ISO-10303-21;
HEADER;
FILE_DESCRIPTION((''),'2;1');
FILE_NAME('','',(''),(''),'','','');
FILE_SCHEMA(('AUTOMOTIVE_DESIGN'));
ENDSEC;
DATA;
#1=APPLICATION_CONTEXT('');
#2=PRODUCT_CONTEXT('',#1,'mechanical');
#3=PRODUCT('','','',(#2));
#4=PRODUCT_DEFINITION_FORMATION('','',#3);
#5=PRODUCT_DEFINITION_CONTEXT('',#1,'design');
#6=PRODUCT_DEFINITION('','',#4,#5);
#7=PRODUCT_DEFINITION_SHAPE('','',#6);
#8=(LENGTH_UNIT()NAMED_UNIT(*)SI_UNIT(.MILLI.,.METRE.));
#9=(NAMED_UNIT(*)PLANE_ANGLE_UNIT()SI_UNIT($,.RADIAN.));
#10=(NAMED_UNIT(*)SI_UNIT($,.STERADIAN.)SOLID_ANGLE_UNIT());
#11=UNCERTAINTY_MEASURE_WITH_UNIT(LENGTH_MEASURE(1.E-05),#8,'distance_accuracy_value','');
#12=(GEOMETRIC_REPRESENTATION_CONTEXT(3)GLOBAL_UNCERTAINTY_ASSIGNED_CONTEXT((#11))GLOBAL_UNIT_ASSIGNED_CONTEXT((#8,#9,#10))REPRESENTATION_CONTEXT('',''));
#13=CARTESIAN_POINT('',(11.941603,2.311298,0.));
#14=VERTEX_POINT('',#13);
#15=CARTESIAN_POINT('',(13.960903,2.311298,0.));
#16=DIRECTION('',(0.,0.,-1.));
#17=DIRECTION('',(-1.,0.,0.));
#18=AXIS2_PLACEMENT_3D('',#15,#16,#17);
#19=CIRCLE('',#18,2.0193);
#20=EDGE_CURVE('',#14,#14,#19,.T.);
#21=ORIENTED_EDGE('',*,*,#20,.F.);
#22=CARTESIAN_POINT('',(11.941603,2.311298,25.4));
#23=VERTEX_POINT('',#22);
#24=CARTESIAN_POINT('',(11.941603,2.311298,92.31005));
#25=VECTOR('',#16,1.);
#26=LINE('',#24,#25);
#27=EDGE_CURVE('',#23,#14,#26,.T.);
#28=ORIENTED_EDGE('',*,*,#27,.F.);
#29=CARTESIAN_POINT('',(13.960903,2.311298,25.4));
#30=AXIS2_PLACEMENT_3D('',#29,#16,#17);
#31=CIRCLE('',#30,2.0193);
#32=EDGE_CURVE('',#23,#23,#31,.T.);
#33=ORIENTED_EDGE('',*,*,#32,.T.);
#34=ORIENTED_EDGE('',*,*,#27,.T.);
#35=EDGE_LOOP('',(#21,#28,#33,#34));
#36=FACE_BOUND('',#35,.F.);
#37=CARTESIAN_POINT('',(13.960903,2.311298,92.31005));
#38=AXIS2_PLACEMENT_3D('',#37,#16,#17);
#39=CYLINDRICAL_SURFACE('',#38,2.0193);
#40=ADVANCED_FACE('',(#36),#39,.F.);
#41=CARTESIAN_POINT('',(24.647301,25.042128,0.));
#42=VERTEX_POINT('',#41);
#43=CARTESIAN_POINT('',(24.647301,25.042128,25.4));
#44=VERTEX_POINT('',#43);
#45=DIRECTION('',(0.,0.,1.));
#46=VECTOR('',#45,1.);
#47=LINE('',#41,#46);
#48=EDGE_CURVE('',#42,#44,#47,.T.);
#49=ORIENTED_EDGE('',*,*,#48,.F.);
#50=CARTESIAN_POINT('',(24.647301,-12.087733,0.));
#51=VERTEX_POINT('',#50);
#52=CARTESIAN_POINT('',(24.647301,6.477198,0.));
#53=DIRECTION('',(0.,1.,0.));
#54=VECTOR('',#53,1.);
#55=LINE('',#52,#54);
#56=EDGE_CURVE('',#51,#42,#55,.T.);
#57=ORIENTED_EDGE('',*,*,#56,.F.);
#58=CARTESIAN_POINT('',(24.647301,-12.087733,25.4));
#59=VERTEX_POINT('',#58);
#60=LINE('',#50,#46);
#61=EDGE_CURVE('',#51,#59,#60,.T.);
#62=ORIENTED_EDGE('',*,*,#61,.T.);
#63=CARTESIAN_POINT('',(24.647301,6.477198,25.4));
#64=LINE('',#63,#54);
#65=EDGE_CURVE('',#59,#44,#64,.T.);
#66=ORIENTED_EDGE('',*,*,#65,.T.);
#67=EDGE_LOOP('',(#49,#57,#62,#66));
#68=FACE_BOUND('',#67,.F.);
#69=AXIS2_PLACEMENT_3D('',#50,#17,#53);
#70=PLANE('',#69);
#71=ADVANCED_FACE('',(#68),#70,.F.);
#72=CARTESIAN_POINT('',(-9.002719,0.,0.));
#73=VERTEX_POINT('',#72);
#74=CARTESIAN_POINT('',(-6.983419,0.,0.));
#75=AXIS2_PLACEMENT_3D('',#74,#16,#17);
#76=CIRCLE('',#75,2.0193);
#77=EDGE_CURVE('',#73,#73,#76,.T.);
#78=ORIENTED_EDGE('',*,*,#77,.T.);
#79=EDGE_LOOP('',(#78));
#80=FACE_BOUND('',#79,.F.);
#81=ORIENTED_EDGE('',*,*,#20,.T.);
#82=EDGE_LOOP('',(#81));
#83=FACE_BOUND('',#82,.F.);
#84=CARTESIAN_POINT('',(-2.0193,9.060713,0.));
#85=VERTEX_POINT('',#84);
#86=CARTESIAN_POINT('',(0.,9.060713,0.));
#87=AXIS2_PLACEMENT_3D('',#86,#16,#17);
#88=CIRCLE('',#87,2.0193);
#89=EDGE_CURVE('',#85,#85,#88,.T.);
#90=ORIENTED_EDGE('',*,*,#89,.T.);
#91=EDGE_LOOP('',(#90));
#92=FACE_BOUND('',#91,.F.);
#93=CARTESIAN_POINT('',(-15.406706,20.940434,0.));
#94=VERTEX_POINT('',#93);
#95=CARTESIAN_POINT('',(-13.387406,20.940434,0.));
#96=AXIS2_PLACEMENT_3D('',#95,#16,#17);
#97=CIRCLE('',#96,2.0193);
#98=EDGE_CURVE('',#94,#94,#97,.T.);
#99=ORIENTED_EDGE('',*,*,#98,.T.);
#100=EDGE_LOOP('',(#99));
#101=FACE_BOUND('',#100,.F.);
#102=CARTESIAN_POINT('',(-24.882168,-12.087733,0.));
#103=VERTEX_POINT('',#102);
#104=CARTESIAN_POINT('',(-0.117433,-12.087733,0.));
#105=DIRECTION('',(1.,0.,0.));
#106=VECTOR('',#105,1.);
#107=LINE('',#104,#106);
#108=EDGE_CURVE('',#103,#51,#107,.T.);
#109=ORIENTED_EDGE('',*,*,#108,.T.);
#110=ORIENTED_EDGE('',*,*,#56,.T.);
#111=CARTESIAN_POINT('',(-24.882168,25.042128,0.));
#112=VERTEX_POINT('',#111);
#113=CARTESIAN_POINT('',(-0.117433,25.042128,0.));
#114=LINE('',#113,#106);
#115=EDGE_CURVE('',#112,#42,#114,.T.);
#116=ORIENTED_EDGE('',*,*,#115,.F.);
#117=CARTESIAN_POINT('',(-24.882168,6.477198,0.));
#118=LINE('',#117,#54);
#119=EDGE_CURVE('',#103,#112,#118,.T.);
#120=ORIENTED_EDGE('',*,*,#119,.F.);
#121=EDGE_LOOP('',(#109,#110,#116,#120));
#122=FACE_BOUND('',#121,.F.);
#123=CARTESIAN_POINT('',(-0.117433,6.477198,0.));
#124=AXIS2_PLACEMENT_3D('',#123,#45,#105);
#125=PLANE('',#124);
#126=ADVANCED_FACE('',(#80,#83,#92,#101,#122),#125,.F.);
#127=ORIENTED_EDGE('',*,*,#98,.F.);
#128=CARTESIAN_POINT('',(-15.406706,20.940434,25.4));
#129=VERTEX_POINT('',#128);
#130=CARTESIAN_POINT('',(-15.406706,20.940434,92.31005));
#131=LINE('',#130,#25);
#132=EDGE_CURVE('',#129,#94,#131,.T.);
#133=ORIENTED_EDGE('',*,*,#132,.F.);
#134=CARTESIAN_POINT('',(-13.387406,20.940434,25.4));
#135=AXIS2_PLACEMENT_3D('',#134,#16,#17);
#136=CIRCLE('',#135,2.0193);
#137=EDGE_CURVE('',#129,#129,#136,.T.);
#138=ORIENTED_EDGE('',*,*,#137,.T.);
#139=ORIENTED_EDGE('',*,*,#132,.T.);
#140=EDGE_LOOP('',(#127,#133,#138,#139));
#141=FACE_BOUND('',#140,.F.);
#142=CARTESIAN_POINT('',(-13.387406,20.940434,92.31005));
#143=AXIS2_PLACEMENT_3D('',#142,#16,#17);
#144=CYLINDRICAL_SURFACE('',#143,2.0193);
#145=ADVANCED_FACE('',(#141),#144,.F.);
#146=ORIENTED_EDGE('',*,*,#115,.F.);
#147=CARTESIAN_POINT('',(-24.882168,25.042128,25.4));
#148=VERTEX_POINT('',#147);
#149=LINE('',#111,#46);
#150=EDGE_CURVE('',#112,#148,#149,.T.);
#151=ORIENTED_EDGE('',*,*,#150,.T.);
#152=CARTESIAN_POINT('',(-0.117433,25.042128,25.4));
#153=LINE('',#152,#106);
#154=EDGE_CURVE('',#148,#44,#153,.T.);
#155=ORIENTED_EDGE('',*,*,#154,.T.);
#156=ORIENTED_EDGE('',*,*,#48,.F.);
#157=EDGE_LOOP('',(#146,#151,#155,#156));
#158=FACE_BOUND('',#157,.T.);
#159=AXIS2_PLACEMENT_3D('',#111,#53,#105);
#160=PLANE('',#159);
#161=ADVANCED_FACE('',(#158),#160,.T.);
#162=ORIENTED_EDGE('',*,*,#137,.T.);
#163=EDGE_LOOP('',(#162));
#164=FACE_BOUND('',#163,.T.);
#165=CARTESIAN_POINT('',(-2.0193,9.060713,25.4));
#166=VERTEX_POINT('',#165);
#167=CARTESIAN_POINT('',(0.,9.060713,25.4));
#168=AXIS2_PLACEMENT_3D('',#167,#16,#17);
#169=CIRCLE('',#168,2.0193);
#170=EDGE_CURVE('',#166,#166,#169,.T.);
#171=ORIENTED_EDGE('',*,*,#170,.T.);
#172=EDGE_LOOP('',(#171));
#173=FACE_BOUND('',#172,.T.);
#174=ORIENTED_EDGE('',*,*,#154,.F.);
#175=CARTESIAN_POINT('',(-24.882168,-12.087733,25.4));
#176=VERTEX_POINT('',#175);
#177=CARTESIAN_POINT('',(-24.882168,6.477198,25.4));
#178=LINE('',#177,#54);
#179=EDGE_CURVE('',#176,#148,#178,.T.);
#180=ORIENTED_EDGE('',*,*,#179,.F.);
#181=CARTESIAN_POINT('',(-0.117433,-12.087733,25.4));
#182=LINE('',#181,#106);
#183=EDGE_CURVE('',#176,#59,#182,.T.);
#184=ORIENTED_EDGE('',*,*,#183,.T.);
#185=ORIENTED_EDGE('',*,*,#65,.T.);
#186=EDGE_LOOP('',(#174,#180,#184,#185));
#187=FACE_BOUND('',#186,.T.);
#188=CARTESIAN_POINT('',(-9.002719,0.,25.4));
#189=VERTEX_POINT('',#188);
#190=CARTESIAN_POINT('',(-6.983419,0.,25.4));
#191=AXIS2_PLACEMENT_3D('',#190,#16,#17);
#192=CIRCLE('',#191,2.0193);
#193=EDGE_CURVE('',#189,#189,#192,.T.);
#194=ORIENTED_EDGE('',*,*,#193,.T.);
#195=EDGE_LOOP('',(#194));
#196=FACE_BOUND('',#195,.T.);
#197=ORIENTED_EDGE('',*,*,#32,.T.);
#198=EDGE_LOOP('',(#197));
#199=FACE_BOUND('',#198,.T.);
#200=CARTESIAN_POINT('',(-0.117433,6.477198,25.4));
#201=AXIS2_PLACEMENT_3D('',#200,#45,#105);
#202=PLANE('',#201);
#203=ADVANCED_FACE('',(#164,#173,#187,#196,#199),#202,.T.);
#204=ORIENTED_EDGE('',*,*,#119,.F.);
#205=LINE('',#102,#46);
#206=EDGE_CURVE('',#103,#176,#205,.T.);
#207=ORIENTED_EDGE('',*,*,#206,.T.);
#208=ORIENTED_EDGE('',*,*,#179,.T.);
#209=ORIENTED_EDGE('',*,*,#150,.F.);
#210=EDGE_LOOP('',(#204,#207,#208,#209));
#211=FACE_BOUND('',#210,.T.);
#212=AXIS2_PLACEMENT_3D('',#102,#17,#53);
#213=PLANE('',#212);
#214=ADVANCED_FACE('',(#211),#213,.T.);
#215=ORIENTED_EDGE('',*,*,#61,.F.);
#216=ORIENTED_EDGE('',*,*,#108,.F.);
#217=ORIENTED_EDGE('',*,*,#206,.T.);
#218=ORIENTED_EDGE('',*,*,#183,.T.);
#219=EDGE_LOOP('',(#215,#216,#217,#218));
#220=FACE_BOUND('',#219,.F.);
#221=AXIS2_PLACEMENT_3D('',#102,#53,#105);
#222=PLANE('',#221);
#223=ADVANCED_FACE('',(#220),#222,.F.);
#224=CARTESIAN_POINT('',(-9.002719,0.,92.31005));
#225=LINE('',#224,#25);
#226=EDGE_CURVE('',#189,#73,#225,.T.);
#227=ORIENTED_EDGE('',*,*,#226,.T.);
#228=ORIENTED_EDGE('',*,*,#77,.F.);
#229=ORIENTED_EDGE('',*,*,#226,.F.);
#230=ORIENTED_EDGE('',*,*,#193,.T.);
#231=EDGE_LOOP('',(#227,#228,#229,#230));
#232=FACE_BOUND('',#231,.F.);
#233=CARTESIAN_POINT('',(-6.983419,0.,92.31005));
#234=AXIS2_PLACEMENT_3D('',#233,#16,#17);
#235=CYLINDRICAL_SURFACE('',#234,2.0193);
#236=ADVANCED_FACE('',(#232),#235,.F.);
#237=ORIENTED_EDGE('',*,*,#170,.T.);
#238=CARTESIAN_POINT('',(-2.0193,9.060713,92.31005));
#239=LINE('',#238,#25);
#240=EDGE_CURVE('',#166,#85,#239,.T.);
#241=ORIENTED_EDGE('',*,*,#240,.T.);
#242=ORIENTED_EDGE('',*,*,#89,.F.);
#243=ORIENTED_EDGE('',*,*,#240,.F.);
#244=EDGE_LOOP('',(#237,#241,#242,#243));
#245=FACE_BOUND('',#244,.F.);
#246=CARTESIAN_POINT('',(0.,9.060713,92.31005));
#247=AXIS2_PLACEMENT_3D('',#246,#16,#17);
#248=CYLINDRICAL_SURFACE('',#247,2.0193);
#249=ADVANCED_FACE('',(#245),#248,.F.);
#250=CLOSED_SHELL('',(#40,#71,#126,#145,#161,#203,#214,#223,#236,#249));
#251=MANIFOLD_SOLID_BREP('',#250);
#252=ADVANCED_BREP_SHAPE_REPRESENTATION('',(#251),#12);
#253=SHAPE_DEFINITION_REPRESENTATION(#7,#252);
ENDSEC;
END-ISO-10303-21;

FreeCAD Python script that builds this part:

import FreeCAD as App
import Part
import Sketcher
from FreeCAD import Vector
Q = App.Units.Quantity


def add_polygon(sketch, points):
    """Adds a closed chain of lines whose ends are joined by coincident constraints."""
    first, n = sketch.GeometryCount, len(points)
    for a, b in zip(points, points[1:] + points[:1]):
        sketch.addGeometry(Part.LineSegment(App.Vector(*a, 0), App.Vector(*b, 0)), False)
    for i in range(n):
        sketch.addConstraint(Sketcher.Constraint("Coincident", first + i, 2, first + (i + 1) % n, 1))

doc = App.newDocument("Part")
params = doc.addObject("Spreadsheet::Sheet", "Params")
for row, (alias, value) in enumerate([
    ("pad1_length", "1 in"),
    ("sketch2_diameter", "0.159 in"),
    ("hole_diameter", "0.159 in"),
], start=1):
    params.set(f"A{row}", alias)
    params.set(f"B{row}", "=" + value)
    params.setAlias(f"B{row}", alias)

body = doc.addObject("PartDesign::Body", "Body")

# Sketch on XY plane
sketch1 = body.newObject("Sketcher::SketchObject", "Sketch")
sketch1.AttachmentSupport = (doc.getObject("XY_Plane"), [""])
sketch1.MapMode = "FlatFace"
add_polygon(sketch1, [(-25, 25), (-25, -12), (25, -12), (25, 25)])  # lines 0-3
sketch1.addConstraint(Sketcher.Constraint("Vertical", 0))
sketch1.addConstraint(Sketcher.Constraint("Horizontal", 1))
sketch1.addConstraint(Sketcher.Constraint("Vertical", 2))
sketch1.addConstraint(Sketcher.Constraint("Horizontal", 3))
sketch1.addConstraint(Sketcher.Constraint("DistanceX", 1, 1, 1, 2, Q("49.529469 mm")))
sketch1.addConstraint(Sketcher.Constraint("DistanceY", 0, 2, 0, 1, Q("37.12986 mm")))
sketch1.addConstraint(Sketcher.Constraint("DistanceX", -1, 1, 1, 2, Q("24.647301 mm")))
sketch1.addConstraint(Sketcher.Constraint("DistanceY", 0, 2, -1, 1, Q("12.087733 mm")))
pad1 = body.newObject("PartDesign::Pad", "Pad")
pad1.Profile = sketch1
pad1.setExpression("Length", "Params.pad1_length")

# Sketch on XY plane
sketch2 = body.newObject("Sketcher::SketchObject", "Sketch001")
sketch2.AttachmentSupport = (doc.getObject("XY_Plane"), [""])
sketch2.MapMode = "FlatFace"
sketch2.AttachmentOffset = App.Placement(Vector(0, 0, 1 * 25.4), App.Rotation())
sketch2.addGeometry(Part.Circle(Vector(14, 2.3, 0), Vector(0, 0, 1), 2), False)
sketch2.addGeometry(Part.Circle(Vector(-13.4, 20.9, 0), Vector(0, 0, 1), 2), False)
sketch2.addGeometry(Part.Circle(Vector(-7, 0, 0), Vector(0, 0, 1), 2), False)
sketch2.addGeometry(Part.Circle(Vector(0, 9.1, 0), Vector(0, 0, 1), 2), False)
sketch2.addConstraint(Sketcher.Constraint("Equal", 0, 1))
sketch2.addConstraint(Sketcher.Constraint("Equal", 1, 2))
sketch2.addConstraint(Sketcher.Constraint("Equal", 2, 3))
sketch2.addConstraint(Sketcher.Constraint("PointOnObject", 2, 3, -1))
sketch2.addConstraint(Sketcher.Constraint("PointOnObject", 3, 3, -2))
sketch2.addConstraint(Sketcher.Constraint("Diameter", 0, Q("0.159 in")))
sketch2.addConstraint(Sketcher.Constraint("DistanceX", 2, 3, -1, 1, Q("6.983419 mm")))
sketch2.addConstraint(Sketcher.Constraint("DistanceX", 1, 3, 0, 3, Q("27.348308 mm")))
sketch2.addConstraint(Sketcher.Constraint("DistanceX", 2, 3, 0, 3, Q("20.944322 mm")))
sketch2.addConstraint(Sketcher.Constraint("DistanceY", 3, 3, 1, 3, Q("11.879721 mm")))
sketch2.addConstraint(Sketcher.Constraint("DistanceY", -1, 1, 0, 3, Q("2.311298 mm")))
sketch2.addConstraint(Sketcher.Constraint("DistanceY", -1, 1, 1, 3, Q("20.940434 mm")))
sketch2.setExpression("Constraints[5]", "Params.sketch2_diameter")
doc.recompute()
hole = body.newObject("PartDesign::Hole", "Hole")
hole.Profile = sketch2
hole.ThreadType = "None"
hole.setExpression("Diameter", "Params.hole_diameter")
hole.DepthType = "ThroughAll"

doc.recompute()
